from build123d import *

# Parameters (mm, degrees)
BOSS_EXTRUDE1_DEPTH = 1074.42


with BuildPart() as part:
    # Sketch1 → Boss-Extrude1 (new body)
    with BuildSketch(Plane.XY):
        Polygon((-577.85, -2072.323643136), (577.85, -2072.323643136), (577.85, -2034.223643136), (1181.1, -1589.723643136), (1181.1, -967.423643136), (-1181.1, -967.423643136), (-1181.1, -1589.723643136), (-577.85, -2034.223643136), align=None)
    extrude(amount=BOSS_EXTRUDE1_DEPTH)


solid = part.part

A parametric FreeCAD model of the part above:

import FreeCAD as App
import Part
import Sketcher

V = App.Vector
Q = App.Units.Quantity

doc = App.newDocument("Part")
body = doc.addObject("PartDesign::Body", "Body")

sketch1 = body.newObject("Sketcher::SketchObject", "Sketch")
sketch1.AttachmentSupport = (doc.getObject("XY_Plane"), [""])
sketch1.MapMode = "FlatFace"
sketch1.addGeometry([
    Part.LineSegment(V(-577.85, -2072.323643, 0), V(577.85, -2072.323643, 0)),
    Part.LineSegment(V(577.85, -2072.323643, 0), V(577.85, -2034.223643, 0)),
    Part.LineSegment(V(577.85, -2034.223643, 0), V(1181.1, -1589.723643, 0)),
    Part.LineSegment(V(1181.1, -1589.723643, 0), V(1181.1, -967.423643, 0)),
    Part.LineSegment(V(1181.1, -967.423643, 0), V(-1181.1, -967.423643, 0)),
    Part.LineSegment(V(-1181.1, -967.423643, 0), V(-1181.1, -1589.723643, 0)),
    Part.LineSegment(V(-1181.1, -1589.723643, 0), V(-577.85, -2034.223643, 0)),
    Part.LineSegment(V(-577.85, -2034.223643, 0), V(-577.85, -2072.323643, 0)),
], False)
sketch1.addConstraint([
    Sketcher.Constraint("Coincident", 0, 2, 1, 1),
    Sketcher.Constraint("Coincident", 1, 2, 2, 1),
    Sketcher.Constraint("Coincident", 2, 2, 3, 1),
    Sketcher.Constraint("Coincident", 3, 2, 4, 1),
    Sketcher.Constraint("Coincident", 4, 2, 5, 1),
    Sketcher.Constraint("Coincident", 5, 2, 6, 1),
    Sketcher.Constraint("Coincident", 6, 2, 7, 1),
    Sketcher.Constraint("Coincident", 7, 2, 0, 1),
    Sketcher.Constraint("Horizontal", 0),
    Sketcher.Constraint("Vertical", 1),
    Sketcher.Constraint("Vertical", 3),
    Sketcher.Constraint("Horizontal", 4),
    Sketcher.Constraint("Vertical", 5),
    Sketcher.Constraint("Vertical", 7),
    Sketcher.Constraint("Symmetric", 2, 2, 5, 2, -2),
    Sketcher.Constraint("Symmetric", 1, 2, 6, 2, -2),
    Sketcher.Constraint("DistanceX", 4, 2, 4, 1, Q("93 in")),
    Sketcher.Constraint("DistanceX", 0, 1, 0, 2, Q("45.5 in")),
    Sketcher.Constraint("DistanceY", 1, 1, 1, 2, Q("1.5 in")),
    Sketcher.Constraint("DistanceY", 3, 1, 3, 2, Q("24.5 in")),
    Sketcher.Constraint("DistanceY", 0, 2, 2, 2, Q("19 in")),
    Sketcher.Constraint("DistanceY", 0, 2, -1, 1, 2072.323643),
])
pad1 = body.newObject("PartDesign::Pad", "Pad")
pad1.Profile = sketch1
pad1.Length = Q("42.3 in")

doc.recompute()
